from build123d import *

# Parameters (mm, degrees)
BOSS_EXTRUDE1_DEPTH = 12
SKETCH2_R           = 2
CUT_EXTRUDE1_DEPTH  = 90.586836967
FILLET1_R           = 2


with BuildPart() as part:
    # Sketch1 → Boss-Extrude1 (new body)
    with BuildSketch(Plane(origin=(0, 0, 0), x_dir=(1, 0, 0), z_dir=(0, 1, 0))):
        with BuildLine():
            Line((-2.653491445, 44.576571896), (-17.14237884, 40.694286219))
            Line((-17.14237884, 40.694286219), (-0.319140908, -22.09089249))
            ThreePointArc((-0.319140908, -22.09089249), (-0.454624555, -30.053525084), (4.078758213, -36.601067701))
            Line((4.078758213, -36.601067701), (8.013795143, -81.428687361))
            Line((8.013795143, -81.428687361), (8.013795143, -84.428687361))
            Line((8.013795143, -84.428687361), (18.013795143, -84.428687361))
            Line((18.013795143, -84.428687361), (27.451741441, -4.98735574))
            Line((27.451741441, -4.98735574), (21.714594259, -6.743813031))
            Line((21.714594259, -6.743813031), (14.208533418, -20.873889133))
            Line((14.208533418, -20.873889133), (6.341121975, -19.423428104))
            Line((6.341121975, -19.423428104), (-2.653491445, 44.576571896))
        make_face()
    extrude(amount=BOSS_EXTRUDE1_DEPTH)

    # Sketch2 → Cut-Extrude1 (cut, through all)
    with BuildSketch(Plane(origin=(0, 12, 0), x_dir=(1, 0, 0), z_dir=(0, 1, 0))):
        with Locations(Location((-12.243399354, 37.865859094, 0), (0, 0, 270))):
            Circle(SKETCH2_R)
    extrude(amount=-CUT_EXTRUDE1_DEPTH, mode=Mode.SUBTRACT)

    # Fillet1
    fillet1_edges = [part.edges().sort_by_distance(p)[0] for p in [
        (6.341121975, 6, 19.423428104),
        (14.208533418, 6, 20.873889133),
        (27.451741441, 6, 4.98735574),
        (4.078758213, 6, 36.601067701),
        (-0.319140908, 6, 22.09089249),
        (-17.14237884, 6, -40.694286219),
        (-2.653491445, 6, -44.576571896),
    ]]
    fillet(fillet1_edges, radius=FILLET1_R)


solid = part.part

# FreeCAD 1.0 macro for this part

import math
import FreeCAD as App
import Part
import Sketcher

V = App.Vector
Q = App.Units.Quantity


def edges_at(feature, points):
    """Names of the edges that pass closest to the given points."""
    edges = feature.Shape.Edges
    near = lambda p: min(range(len(edges)), key=lambda i: edges[i].distToShape(Part.Vertex(*p))[0])
    return sorted({f"Edge{near(p) + 1}" for p in points})

doc = App.newDocument("Part")
body = doc.addObject("PartDesign::Body", "Body")

# Sketch on XZ plane
sketch1 = body.newObject("Sketcher::SketchObject", "Sketch")
sketch1.AttachmentSupport = (doc.getObject("XZ_Plane"), [""])
sketch1.MapMode = "FlatFace"
sketch1.addGeometry([
    Part.LineSegment(V(-2.653491, -44.576572, 0), V(-17.142379, -40.694286, 0)),  # 0
    Part.LineSegment(V(-17.142379, -40.694286, 0), V(-0.319141, 22.090892, 0)),  # 1
    Part.ArcOfCircle(Part.Circle(V(11.986484, 26.282741, 0), V(0, 0, 1), 13), math.radians(127.465717), math.radians(198.811147)),  # 2
    Part.LineSegment(V(4.078758, 36.601068, 0), V(8.013795, 81.428687, 0)),  # 3
    Part.LineSegment(V(8.013795, 81.428687, 0), V(8.013795, 84.428687, 0)),  # 4
    Part.LineSegment(V(8.013795, 84.428687, 0), V(18.013795, 84.428687, 0)),  # 5
    Part.LineSegment(V(18.013795, 84.428687, 0), V(27.451741, 4.987356, 0)),  # 6
    Part.LineSegment(V(27.451741, 4.987356, 0), V(21.714594, 6.743813, 0)),  # 7
    Part.LineSegment(V(21.714594, 6.743813, 0), V(14.208533, 20.873889, 0)),  # 8
    Part.LineSegment(V(14.208533, 20.873889, 0), V(6.341122, 19.423428, 0)),  # 9
    Part.LineSegment(V(6.341122, 19.423428, 0), V(-2.653491, -44.576572, 0)),  # 10
], False)
sketch1.addConstraint([
    Sketcher.Constraint("Coincident", 0, 2, 1, 1),
    Sketcher.Constraint("Coincident", 1, 2, 2, 2),
    Sketcher.Constraint("Coincident", 2, 1, 3, 1),
    Sketcher.Constraint("Coincident", 3, 2, 4, 1),
    Sketcher.Constraint("Coincident", 4, 2, 5, 1),
    Sketcher.Constraint("Coincident", 5, 2, 6, 1),
    Sketcher.Constraint("Coincident", 6, 2, 7, 1),
    Sketcher.Constraint("Coincident", 7, 2, 8, 1),
    Sketcher.Constraint("Coincident", 8, 2, 9, 1),
    Sketcher.Constraint("Coincident", 9, 2, 10, 1),
    Sketcher.Constraint("Coincident", 10, 2, 0, 1),
    Sketcher.Constraint("Vertical", 4),
    Sketcher.Constraint("Horizontal", 5),
    Sketcher.Constraint("Perpendicular", 0, 1),
    Sketcher.Constraint("Radius", 2, 13.0),
    Sketcher.Constraint("DistanceX", 5, 1, 5, 2, 10.0),
    Sketcher.Constraint("DistanceY", 4, 1, 4, 2, 3.0),
    Sketcher.Constraint("Angle", 0, Q("165 deg")),
    Sketcher.Constraint("Angle", 10, Q("-98 deg")),
    Sketcher.Constraint("Distance", 0, 15.0),
    Sketcher.Constraint("Distance", 1, 65.0),
    Sketcher.Constraint("Distance", 3, 45.0),
    Sketcher.Constraint("Distance", 6, 80.0),
    Sketcher.Constraint("Distance", 7, 6.0),
    Sketcher.Constraint("Distance", 8, 16.0),
    Sketcher.Constraint("Distance", 9, 8.0),
    Sketcher.Constraint("DistanceY", 10, 2, 9, 2, 64.0),
    Sketcher.Constraint("DistanceX", 1, 2, 2, 1, 4.397899),
    Sketcher.Constraint("DistanceY", 0, 2, 7, 2, 47.438099),
    Sketcher.Constraint("DistanceY", -1, 1, 2, 3, 26.282741),
    Sketcher.Constraint("DistanceX", 0, 2, -1, 1, 17.142379),
    Sketcher.Constraint("DistanceX", -1, 1, 6, 2, 27.451741),
    Sketcher.Constraint("DistanceY", -1, 1, 8, 2, 20.873889),
    Sketcher.Constraint("DistanceY", -1, 1, 9, 2, 19.423428),
])
pad1 = body.newObject("PartDesign::Pad", "Pad")
pad1.Profile = sketch1
pad1.Length = 12
pad1.Reversed = True

# Sketch on XZ plane
sketch2 = body.newObject("Sketcher::SketchObject", "Sketch001")
sketch2.AttachmentSupport = (doc.getObject("XZ_Plane"), [""])
sketch2.MapMode = "FlatFace"
sketch2.AttachmentOffset = App.Placement(V(0, 0, -12), App.Rotation())
sketch2.addGeometry(Part.Circle(V(-12.243399, -37.865859, 0), V(0, 0, 1), 2), False)
sketch2.addConstraint([
    Sketcher.Constraint("Diameter", 0, 4.0),
    Sketcher.Constraint("DistanceX", 0, 3, -1, 1, 12.243399),
    Sketcher.Constraint("DistanceY", 0, 3, -1, 1, 37.865859),
])
pocket1 = body.newObject("PartDesign::Pocket", "Pocket")
pocket1.Profile = sketch2
pocket1.Type = "ThroughAll"
pocket1.Reversed = True
doc.recompute()

fillet = body.newObject("PartDesign::Fillet", "Fillet")
fillet.Base = (pocket1, edges_at(pocket1, [
    (6.341, 6, 19.423),
    (14.209, 6, 20.874),
    (27.452, 6, 4.987),
    (4.079, 6, 36.601),
    (-0.319, 6, 22.091),
    (-17.142, 6, -40.694),
    (-2.653, 6, -44.577),
]))
fillet.Radius = 2

doc.recompute()
